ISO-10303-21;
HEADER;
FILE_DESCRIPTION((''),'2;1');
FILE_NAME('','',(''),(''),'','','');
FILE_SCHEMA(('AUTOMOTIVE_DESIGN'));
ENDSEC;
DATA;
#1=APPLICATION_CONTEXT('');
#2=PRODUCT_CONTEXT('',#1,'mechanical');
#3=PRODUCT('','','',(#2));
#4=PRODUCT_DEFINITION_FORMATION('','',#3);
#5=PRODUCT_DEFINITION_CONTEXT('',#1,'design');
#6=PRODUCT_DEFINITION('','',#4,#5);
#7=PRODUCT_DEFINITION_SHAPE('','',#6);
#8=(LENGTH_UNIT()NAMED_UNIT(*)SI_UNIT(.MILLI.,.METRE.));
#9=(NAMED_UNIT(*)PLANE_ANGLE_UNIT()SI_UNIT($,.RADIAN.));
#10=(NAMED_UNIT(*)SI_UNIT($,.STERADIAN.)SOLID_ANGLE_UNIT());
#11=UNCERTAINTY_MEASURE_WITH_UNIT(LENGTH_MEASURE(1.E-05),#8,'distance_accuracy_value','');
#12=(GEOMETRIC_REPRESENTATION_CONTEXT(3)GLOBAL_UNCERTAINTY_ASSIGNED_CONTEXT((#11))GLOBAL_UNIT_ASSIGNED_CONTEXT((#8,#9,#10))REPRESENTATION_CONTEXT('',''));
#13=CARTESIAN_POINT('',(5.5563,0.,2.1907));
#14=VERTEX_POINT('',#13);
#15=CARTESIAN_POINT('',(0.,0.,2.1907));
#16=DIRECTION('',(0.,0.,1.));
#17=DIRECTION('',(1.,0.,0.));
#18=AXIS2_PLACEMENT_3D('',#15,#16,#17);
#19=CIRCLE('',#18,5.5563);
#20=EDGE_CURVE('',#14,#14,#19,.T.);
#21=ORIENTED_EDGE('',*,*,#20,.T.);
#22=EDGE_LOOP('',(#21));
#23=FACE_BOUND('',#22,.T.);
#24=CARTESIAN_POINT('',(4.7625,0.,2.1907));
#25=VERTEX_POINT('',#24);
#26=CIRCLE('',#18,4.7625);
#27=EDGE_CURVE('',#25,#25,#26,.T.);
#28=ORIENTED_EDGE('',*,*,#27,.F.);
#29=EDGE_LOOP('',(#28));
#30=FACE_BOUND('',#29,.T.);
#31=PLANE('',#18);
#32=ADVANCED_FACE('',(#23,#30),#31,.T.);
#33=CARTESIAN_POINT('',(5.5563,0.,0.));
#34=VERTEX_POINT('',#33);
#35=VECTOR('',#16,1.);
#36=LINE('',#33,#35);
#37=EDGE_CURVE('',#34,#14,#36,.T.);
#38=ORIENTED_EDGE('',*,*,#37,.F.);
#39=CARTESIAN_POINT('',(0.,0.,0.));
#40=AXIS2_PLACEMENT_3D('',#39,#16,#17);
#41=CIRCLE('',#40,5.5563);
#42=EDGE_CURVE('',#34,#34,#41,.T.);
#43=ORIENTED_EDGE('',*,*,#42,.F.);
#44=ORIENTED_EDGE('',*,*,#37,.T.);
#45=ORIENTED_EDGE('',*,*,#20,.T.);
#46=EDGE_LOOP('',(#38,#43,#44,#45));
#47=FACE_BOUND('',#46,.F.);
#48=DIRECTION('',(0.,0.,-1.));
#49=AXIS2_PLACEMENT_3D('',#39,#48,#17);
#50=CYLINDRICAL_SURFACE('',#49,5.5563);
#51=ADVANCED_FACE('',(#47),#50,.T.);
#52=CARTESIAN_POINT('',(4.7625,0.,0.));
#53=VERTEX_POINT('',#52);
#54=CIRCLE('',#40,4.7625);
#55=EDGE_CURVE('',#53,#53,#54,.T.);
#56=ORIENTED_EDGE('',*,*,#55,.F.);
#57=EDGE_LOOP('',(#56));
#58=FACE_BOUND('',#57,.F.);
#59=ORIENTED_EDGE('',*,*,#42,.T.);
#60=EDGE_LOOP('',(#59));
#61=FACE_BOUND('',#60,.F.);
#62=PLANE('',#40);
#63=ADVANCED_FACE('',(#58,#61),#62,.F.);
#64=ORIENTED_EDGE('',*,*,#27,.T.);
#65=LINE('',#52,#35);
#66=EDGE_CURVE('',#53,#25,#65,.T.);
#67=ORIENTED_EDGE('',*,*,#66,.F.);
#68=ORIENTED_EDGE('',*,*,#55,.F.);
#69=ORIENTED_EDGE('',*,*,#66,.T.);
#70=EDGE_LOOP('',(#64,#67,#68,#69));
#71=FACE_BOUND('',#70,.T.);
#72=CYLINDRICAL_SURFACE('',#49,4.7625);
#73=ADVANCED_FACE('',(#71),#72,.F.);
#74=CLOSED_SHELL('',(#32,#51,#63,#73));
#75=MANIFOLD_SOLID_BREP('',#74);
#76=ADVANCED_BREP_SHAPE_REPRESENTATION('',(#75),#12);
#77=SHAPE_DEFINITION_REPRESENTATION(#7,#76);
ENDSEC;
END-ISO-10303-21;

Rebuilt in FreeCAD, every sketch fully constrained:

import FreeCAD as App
import Part
import Sketcher

V = App.Vector
Q = App.Units.Quantity

doc = App.newDocument("Part")
body = doc.addObject("PartDesign::Body", "Body")

sketch1 = doc.addObject("Sketcher::SketchObject", "Sketch")
body.addObject(sketch1)
sketch1.AttachmentSupport = (doc.XY_Plane, [""])
sketch1.MapMode = "FlatFace"
sketch1.addGeometry([
    Part.Circle(V(0, 0, 0), V(0, 0, 1), 5.6),
    Part.Circle(V(0, 0, 0), V(0, 0, 1), 4.8),
], False)
sketch1.addConstraint([
    Sketcher.Constraint("Coincident", 0, 3, -1, 1),
    Sketcher.Constraint("Coincident", 1, 3, -1, 1),
    Sketcher.Constraint("Diameter", 0, Q("0.4375 in")),
    Sketcher.Constraint("Diameter", 1, Q("0.375 in")),
])
pad1 = doc.addObject("PartDesign::Pad", "Pad")
body.addObject(pad1)
pad1.Profile = sketch1
pad1.Length = 2.1907

doc.recompute()
